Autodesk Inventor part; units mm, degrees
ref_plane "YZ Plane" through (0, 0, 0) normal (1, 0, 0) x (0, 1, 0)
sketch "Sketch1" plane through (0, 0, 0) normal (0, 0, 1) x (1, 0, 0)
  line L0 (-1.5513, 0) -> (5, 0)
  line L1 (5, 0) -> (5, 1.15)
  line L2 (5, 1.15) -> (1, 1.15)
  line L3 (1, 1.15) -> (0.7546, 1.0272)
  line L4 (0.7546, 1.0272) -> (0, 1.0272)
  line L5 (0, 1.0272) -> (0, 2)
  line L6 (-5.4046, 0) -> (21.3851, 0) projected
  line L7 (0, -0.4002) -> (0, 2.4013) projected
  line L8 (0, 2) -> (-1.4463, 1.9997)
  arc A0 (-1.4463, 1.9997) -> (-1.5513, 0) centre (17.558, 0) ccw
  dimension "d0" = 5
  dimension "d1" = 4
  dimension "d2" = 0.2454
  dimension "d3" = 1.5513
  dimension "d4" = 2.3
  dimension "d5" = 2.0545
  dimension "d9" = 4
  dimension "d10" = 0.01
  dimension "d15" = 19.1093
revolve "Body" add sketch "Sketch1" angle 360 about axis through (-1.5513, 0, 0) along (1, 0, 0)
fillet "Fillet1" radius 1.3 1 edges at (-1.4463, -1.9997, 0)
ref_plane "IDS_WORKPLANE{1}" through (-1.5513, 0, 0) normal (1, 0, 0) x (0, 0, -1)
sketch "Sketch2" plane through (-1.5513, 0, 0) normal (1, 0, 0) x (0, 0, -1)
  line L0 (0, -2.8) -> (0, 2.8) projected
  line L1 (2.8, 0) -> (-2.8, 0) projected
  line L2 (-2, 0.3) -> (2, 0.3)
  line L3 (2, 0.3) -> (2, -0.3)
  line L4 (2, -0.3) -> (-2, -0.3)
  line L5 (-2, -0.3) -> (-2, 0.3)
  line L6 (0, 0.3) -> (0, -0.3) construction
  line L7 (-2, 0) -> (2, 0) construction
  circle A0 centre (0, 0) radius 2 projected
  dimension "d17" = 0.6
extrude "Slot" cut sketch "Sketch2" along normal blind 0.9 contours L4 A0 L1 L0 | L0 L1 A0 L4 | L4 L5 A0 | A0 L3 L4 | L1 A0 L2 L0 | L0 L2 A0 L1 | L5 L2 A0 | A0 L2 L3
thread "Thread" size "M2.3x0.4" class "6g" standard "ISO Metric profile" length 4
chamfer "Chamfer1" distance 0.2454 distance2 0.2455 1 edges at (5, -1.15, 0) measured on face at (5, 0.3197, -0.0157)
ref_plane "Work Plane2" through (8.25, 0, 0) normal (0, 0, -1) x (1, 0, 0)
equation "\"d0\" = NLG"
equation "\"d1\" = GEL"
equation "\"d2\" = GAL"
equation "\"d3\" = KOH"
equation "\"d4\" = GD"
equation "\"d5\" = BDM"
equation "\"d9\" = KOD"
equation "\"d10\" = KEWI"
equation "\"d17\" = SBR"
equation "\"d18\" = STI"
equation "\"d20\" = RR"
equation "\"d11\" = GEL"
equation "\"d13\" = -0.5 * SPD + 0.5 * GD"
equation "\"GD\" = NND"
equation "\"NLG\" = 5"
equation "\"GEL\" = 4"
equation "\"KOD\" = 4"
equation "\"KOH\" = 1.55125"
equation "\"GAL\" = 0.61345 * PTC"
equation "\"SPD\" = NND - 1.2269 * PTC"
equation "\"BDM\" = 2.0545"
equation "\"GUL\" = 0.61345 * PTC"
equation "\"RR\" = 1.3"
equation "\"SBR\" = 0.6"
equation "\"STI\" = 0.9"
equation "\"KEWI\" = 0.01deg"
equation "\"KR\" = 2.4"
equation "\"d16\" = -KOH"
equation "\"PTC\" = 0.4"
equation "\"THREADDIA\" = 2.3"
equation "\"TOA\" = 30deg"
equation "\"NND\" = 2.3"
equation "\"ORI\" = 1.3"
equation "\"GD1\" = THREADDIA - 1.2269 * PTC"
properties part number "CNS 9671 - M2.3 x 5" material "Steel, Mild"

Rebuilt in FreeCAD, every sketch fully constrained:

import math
import FreeCAD as App
import Part
import Sketcher


def edges_at(feature, points):
    """Names of the edges that pass closest to the given points."""
    edges = feature.Shape.Edges
    near = lambda p: min(range(len(edges)), key=lambda i: edges[i].distToShape(Part.Vertex(*p))[0])
    return sorted({f"Edge{near(p) + 1}" for p in points})


def add_polygon(sketch, points):
    """Adds a closed chain of lines whose ends are joined by coincident constraints."""
    first, n = sketch.GeometryCount, len(points)
    for a, b in zip(points, points[1:] + points[:1]):
        sketch.addGeometry(Part.LineSegment(App.Vector(*a, 0), App.Vector(*b, 0)), False)
    for i in range(n):
        sketch.addConstraint(Sketcher.Constraint("Coincident", first + i, 2, first + (i + 1) % n, 1))

doc = App.newDocument("Part")
body = doc.addObject("PartDesign::Body", "Body")

# Sketch on XY plane
sketch1 = doc.addObject("Sketcher::SketchObject", "Sketch")
body.addObject(sketch1)
sketch1.AttachmentSupport = (doc.XY_Plane, [""])
sketch1.MapMode = "FlatFace"
sketch1.addGeometry([
    Part.ArcOfCircle(Part.Circle(App.Vector(17.59, 0, 0), App.Vector(0, 0, 1), 19.14), math.radians(174), math.radians(179.99)),  # 0
    Part.LineSegment(App.Vector(-1.55, 0, 0), App.Vector(5, 0, 0)),  # 1
    Part.LineSegment(App.Vector(5, 0, 0), App.Vector(5, 1.15, 0)),  # 2
    Part.LineSegment(App.Vector(5, 1.15, 0), App.Vector(1, 1.15, 0)),  # 3
    Part.LineSegment(App.Vector(1, 1.15, 0), App.Vector(0.75, 1.03, 0)),  # 4
    Part.LineSegment(App.Vector(0.75, 1.03, 0), App.Vector(0, 1.03, 0)),  # 5
    Part.LineSegment(App.Vector(0, 1.03, 0), App.Vector(0, 2, 0)),  # 6
    Part.LineSegment(App.Vector(0, 2, 0), App.Vector(-1.45, 2, 0)),  # 7
], False)
sketch1.addConstraint([
    Sketcher.Constraint("Coincident", 0, 2, 1, 1),
    Sketcher.Constraint("Coincident", 1, 2, 2, 1),
    Sketcher.Constraint("Coincident", 2, 2, 3, 1),
    Sketcher.Constraint("Coincident", 3, 2, 4, 1),
    Sketcher.Constraint("Coincident", 4, 2, 5, 1),
    Sketcher.Constraint("Coincident", 5, 2, 6, 1),
    Sketcher.Constraint("Coincident", 6, 2, 7, 1),
    Sketcher.Constraint("Coincident", 7, 2, 0, 1),
    Sketcher.Constraint("Horizontal", 1),
    Sketcher.Constraint("Vertical", 2),
    Sketcher.Constraint("Horizontal", 3),
    Sketcher.Constraint("Horizontal", 5),
    Sketcher.Constraint("Vertical", 6),
    Sketcher.Constraint("PointOnObject", 0, 2, -1),
    Sketcher.Constraint("PointOnObject", 5, 2, -2),
    Sketcher.Constraint("DistanceX", 3, 2, 3, 1, 4.0),
    Sketcher.Constraint("DistanceX", -1, 1, 1, 2, 5.0),
    Sketcher.Constraint("DistanceY", -1, 1, 6, 2, 2.0),
    Sketcher.Constraint("Radius", 0, 19.139),
    Sketcher.Constraint("DistanceY", 2, 1, 2, 2, 1.15),
    Sketcher.Constraint("DistanceX", 0, 2, -1, 1, 1.5513),
    Sketcher.Constraint("DistanceX", 4, 2, 3, 2, 0.2454),
    Sketcher.Constraint("DistanceY", 6, 1, 6, 2, 0.9728),
    Sketcher.Constraint("DistanceX", 0, 2, 7, 2, 0.105),
    Sketcher.Constraint("DistanceY", 0, 3, -1, 1, 0.0023),
])
revolution = doc.addObject("PartDesign::Revolution", "Revolution")
body.addObject(revolution)
revolution.Profile = sketch1
revolution.ReferenceAxis = (sketch1, ["H_Axis"])
revolution.Angle = 360
doc.recompute()

fillet = doc.addObject("PartDesign::Fillet", "Fillet")
body.addObject(fillet)
fillet.Base = (revolution, edges_at(revolution, [(-1.446, -2, 0)]))
fillet.Radius = 1.3

# Sketch on YZ plane
sketch2 = doc.addObject("Sketcher::SketchObject", "Sketch001")
body.addObject(sketch2)
sketch2.AttachmentSupport = (doc.YZ_Plane, [""])
sketch2.MapMode = "FlatFace"
sketch2.AttachmentOffset = App.Placement(App.Vector(0, 0, -1.5513), App.Rotation())
add_polygon(sketch2, [(-0.3, -2), (0.3, -2), (0.3, 2), (-0.3, 2)])  # lines 0-3
sketch2.addConstraint([
    Sketcher.Constraint("Horizontal", 0),
    Sketcher.Constraint("Vertical", 1),
    Sketcher.Constraint("Horizontal", 2),
    Sketcher.Constraint("Vertical", 3),
    Sketcher.Constraint("Symmetric", 0, 2, 2, 2, -1, 1),
    Sketcher.Constraint("DistanceX", 0, 1, 0, 2, 0.6),
    Sketcher.Constraint("DistanceY", 1, 1, 1, 2, 4.0),
])
pocket1 = doc.addObject("PartDesign::Pocket", "Pocket")
body.addObject(pocket1)
pocket1.Profile = sketch2
pocket1.Length = 0.9
pocket1.Reversed = True
doc.recompute()

chamfer = doc.addObject("PartDesign::Chamfer", "Chamfer")
body.addObject(chamfer)
chamfer.Base = (pocket1, edges_at(pocket1, [(5, -1.15, 0)]))
chamfer.ChamferType = "Two distances"
chamfer.Size = 0.2454
chamfer.Size2 = 0.2455

doc.recompute()
